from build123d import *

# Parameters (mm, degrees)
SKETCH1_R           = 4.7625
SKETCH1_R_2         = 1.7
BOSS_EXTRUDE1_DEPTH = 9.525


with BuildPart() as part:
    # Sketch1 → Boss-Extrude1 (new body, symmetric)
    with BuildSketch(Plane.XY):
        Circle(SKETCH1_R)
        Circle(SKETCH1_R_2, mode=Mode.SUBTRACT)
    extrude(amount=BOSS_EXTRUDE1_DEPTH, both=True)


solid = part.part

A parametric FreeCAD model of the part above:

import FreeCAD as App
import Part
import Sketcher

doc = App.newDocument("Part")
body = doc.addObject("PartDesign::Body", "Body")

# Sketch on XY plane
sketch1 = body.newObject("Sketcher::SketchObject", "Sketch")
sketch1.AttachmentSupport = (doc.getObject("XY_Plane"), [""])
sketch1.MapMode = "FlatFace"
sketch1.addGeometry(Part.Circle(App.Vector(0, 0, 0), App.Vector(0, 0, 1), 4.8), False)
sketch1.addGeometry(Part.Circle(App.Vector(0, 0, 0), App.Vector(0, 0, 1), 1.7), False)
sketch1.addConstraint(Sketcher.Constraint("Coincident", 0, 3, -1, 1))
sketch1.addConstraint(Sketcher.Constraint("Coincident", 1, 3, -1, 1))
sketch1.addConstraint(Sketcher.Constraint("Diameter", 1, 3.4))
sketch1.addConstraint(Sketcher.Constraint("Diameter", 0, 9.525))
pad1 = body.newObject("PartDesign::Pad", "Pad")
pad1.Profile = sketch1
pad1.Length = 19.05
pad1.Midplane = True

doc.recompute()
